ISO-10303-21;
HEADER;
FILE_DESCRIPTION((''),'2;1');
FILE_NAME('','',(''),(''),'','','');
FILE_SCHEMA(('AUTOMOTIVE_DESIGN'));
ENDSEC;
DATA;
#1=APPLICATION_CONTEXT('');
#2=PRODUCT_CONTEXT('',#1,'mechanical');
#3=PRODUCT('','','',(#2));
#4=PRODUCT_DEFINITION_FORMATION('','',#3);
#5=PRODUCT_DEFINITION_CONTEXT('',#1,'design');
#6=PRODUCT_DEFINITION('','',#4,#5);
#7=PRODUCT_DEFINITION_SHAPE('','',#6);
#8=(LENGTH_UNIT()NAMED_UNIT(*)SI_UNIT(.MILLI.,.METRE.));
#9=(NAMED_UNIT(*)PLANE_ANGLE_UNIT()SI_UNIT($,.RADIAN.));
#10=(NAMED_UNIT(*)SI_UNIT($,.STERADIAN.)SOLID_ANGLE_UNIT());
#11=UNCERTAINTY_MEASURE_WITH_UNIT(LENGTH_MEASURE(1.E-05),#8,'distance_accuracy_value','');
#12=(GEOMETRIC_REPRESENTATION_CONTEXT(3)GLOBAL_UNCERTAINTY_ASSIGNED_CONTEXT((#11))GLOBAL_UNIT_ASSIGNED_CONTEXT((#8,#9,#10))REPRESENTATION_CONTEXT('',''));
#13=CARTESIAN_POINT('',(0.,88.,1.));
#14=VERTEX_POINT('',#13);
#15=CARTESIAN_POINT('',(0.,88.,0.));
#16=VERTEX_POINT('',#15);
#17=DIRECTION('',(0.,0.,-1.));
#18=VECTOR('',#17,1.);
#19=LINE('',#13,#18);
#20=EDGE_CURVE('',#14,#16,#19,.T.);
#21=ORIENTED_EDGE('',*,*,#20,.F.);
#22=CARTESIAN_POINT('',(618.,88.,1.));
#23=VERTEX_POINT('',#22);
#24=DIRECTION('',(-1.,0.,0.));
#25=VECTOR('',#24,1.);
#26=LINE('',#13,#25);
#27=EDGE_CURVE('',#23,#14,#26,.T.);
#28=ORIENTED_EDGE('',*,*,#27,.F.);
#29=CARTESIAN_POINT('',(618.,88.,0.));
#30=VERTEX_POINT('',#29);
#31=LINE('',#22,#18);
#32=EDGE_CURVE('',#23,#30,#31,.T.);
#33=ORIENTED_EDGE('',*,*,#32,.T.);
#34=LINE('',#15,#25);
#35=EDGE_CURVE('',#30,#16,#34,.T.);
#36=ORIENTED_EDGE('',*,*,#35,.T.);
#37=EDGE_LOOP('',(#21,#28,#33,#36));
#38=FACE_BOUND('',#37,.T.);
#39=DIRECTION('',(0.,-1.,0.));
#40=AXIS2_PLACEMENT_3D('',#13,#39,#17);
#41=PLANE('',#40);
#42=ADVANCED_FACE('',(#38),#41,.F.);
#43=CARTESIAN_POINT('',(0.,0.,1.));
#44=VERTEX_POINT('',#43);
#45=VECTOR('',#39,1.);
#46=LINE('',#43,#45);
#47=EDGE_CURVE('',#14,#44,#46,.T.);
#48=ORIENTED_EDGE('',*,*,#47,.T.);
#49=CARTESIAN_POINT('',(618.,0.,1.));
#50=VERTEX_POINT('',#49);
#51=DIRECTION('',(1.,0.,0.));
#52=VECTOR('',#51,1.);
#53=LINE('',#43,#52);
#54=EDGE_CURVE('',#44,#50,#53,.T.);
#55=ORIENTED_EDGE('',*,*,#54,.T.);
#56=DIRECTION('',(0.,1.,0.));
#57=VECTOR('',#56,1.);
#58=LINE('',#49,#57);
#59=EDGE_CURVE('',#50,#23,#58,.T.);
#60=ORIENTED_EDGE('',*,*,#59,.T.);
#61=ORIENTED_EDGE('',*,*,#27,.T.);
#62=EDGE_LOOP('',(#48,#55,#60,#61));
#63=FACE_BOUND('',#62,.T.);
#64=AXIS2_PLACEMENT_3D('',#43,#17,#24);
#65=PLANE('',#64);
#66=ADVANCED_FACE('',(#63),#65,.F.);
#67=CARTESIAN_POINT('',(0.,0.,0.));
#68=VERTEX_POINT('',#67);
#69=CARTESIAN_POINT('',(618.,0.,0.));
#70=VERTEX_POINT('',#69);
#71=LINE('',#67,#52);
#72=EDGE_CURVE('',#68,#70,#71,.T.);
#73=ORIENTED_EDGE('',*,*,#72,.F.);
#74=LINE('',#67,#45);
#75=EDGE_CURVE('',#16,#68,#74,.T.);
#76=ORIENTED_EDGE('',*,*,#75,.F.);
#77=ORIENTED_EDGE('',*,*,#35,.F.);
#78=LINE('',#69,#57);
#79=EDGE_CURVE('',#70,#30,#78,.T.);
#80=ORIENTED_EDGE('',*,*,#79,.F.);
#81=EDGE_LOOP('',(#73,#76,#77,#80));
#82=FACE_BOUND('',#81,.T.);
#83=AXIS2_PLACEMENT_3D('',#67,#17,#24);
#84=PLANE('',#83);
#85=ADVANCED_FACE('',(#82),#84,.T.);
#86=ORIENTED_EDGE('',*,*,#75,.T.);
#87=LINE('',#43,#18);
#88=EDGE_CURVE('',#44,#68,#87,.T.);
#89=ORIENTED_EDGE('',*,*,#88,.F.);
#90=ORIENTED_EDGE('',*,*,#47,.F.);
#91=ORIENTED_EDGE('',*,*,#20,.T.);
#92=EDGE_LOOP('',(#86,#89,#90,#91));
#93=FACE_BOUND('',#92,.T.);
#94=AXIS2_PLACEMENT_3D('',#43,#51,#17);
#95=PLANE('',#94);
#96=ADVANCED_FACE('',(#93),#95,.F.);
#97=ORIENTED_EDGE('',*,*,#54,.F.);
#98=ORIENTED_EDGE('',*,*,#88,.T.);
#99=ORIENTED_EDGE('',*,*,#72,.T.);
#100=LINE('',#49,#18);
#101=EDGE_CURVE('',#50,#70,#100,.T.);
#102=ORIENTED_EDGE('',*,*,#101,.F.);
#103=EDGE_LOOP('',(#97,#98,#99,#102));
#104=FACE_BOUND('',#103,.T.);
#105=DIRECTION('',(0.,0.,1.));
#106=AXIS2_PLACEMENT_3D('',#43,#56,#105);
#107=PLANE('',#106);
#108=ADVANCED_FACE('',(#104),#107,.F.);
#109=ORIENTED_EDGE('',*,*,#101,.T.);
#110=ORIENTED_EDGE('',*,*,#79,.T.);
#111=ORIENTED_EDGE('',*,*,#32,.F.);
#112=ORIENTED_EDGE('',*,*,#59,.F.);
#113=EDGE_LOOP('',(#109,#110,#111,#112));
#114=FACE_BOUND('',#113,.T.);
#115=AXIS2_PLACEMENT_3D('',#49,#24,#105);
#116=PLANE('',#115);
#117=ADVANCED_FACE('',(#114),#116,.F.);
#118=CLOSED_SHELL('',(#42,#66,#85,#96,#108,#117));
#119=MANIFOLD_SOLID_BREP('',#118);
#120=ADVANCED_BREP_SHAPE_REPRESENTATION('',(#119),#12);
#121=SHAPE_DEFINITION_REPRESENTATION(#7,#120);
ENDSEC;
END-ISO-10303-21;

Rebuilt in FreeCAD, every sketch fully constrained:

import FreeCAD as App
import Part
import Sketcher


def add_polygon(sketch, points):
    """Adds a closed chain of lines whose ends are joined by coincident constraints."""
    first, n = sketch.GeometryCount, len(points)
    for a, b in zip(points, points[1:] + points[:1]):
        sketch.addGeometry(Part.LineSegment(App.Vector(*a, 0), App.Vector(*b, 0)), False)
    for i in range(n):
        sketch.addConstraint(Sketcher.Constraint("Coincident", first + i, 2, first + (i + 1) % n, 1))

doc = App.newDocument("Part")
body = doc.addObject("PartDesign::Body", "Body")

# Sketch on XY plane
sketch1 = doc.addObject("Sketcher::SketchObject", "Sketch")
body.addObject(sketch1)
sketch1.AttachmentSupport = (doc.XY_Plane, [""])
sketch1.MapMode = "FlatFace"
add_polygon(sketch1, [(0, 88), (0, 0), (618, 0), (618, 88)])  # lines 0-3
sketch1.addConstraint(Sketcher.Constraint("Vertical", 0))
sketch1.addConstraint(Sketcher.Constraint("Horizontal", 1))
sketch1.addConstraint(Sketcher.Constraint("Vertical", 2))
sketch1.addConstraint(Sketcher.Constraint("Horizontal", 3))
sketch1.addConstraint(Sketcher.Constraint("Coincident", 0, 2, -1, 1))
sketch1.addConstraint(Sketcher.Constraint("DistanceX", 1, 1, 1, 2, 618.0))
sketch1.addConstraint(Sketcher.Constraint("DistanceY", 0, 2, 0, 1, 88.0))
pad1 = doc.addObject("PartDesign::Pad", "Pad")
body.addObject(pad1)
pad1.Profile = sketch1
pad1.Length = 1

doc.recompute()
